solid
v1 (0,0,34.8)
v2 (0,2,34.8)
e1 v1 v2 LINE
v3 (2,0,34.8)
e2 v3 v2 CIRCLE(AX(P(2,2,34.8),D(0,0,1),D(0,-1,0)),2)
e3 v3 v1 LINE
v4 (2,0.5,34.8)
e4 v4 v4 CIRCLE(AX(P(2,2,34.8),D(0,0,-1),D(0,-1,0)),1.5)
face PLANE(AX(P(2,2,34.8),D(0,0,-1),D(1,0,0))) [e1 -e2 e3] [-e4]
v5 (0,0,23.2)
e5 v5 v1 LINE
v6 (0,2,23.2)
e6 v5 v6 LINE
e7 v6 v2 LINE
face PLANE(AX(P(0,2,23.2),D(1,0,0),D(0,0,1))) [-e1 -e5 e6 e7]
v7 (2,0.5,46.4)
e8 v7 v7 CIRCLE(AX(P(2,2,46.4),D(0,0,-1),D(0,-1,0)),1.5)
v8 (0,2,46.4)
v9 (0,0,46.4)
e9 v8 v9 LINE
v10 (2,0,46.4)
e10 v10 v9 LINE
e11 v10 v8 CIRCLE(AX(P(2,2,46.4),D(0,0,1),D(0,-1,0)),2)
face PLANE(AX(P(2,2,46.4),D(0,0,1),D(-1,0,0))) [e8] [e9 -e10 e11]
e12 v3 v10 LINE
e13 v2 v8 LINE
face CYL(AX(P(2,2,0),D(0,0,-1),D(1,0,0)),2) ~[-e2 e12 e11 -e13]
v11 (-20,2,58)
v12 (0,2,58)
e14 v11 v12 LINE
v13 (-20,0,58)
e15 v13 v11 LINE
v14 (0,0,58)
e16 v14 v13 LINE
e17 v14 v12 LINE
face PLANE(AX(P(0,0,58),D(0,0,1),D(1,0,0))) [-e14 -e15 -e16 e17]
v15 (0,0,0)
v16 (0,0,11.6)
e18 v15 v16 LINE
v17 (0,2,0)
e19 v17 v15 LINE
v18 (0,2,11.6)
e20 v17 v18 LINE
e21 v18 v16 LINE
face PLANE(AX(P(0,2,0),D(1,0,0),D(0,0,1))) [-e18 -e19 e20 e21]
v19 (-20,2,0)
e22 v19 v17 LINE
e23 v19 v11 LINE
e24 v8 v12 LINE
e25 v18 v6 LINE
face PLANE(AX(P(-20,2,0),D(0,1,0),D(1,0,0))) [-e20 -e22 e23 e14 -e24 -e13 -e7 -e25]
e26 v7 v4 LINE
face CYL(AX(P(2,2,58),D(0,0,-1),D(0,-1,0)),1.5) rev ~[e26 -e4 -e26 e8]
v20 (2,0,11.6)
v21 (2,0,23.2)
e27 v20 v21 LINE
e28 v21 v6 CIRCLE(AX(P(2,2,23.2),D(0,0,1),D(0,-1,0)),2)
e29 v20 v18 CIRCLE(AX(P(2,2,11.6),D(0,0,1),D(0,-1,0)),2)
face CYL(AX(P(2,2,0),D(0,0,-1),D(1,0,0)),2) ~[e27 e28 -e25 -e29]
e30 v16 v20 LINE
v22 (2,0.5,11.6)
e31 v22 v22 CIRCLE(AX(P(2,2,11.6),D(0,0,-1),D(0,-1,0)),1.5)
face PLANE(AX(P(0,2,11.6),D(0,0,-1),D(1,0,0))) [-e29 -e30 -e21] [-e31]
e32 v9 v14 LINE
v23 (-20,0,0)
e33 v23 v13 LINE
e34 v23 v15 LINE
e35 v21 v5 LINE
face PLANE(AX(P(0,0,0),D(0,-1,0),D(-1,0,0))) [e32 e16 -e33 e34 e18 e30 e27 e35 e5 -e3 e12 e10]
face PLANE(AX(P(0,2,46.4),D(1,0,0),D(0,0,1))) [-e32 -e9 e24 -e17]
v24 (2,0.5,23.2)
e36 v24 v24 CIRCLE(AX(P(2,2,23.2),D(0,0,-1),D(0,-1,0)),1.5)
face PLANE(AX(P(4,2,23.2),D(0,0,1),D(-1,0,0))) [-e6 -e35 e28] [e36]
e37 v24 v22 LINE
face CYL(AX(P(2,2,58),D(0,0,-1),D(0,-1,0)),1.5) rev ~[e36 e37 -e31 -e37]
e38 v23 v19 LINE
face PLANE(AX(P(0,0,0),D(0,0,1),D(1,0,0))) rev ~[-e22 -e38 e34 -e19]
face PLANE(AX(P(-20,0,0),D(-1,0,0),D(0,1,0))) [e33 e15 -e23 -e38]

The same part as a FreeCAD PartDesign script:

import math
import FreeCAD as App
import Part
import Sketcher

doc = App.newDocument("Part")
body = doc.addObject("PartDesign::Body", "Body")

# Sketch on XY plane
sketch1 = body.newObject("Sketcher::SketchObject", "Sketch")
sketch1.AttachmentSupport = (doc.getObject("XY_Plane"), [""])
sketch1.MapMode = "FlatFace"
sketch1.addGeometry([
    Part.LineSegment(App.Vector(-20, 0, 0), App.Vector(2, 0, 0)),
    Part.ArcOfCircle(Part.Circle(App.Vector(2, 2, 0), App.Vector(0, 0, 1), 2), math.radians(-90), math.radians(180)),
    Part.LineSegment(App.Vector(0, 2, 0), App.Vector(-20, 2, 0)),
    Part.LineSegment(App.Vector(-20, 2, 0), App.Vector(-20, 0, 0)),
], False)
sketch1.addConstraint([
    Sketcher.Constraint("Tangent", 0, 2, 1, 1),
    Sketcher.Constraint("Coincident", 1, 2, 2, 1),
    Sketcher.Constraint("Coincident", 2, 2, 3, 1),
    Sketcher.Constraint("Coincident", 3, 2, 0, 1),
    Sketcher.Constraint("Horizontal", 0),
    Sketcher.Constraint("Horizontal", 2),
    Sketcher.Constraint("Vertical", 3),
    Sketcher.Constraint("PointOnObject", 0, 2, -1),
    Sketcher.Constraint("PointOnObject", 1, 2, -2),
    Sketcher.Constraint("Radius", 1, 2.0),
    Sketcher.Constraint("DistanceX", 2, 2, 2, 1, 20.0),
    Sketcher.Constraint("DistanceY", 3, 2, 3, 1, 2.0),
])
pad1 = body.newObject("PartDesign::Pad", "Pad")
pad1.Profile = sketch1
pad1.Length = 58

# Sketch on XZ plane
sketch2 = body.newObject("Sketcher::SketchObject", "Sketch001")
sketch2.AttachmentSupport = (doc.getObject("XZ_Plane"), [""])
sketch2.MapMode = "FlatFace"
sketch2.AttachmentOffset = App.Placement(App.Vector(0, 0, -2), App.Rotation())
sketch2.addGeometry([
    Part.LineSegment(App.Vector(0, 11.6, 0), App.Vector(4, 11.6, 0)),  # 0
    Part.LineSegment(App.Vector(4, 11.6, 0), App.Vector(4, 0, 0)),  # 1
    Part.LineSegment(App.Vector(4, 0, 0), App.Vector(0, 0, 0)),  # 2
    Part.LineSegment(App.Vector(0, 0, 0), App.Vector(0, 11.6, 0)),  # 3
    Part.LineSegment(App.Vector(4, 23.2, 0), App.Vector(0, 23.2, 0)),  # 4
    Part.LineSegment(App.Vector(0, 23.2, 0), App.Vector(0, 34.8, 0)),  # 5
    Part.LineSegment(App.Vector(0, 34.8, 0), App.Vector(4, 34.8, 0)),  # 6
    Part.LineSegment(App.Vector(4, 34.8, 0), App.Vector(4, 23.2, 0)),  # 7
    Part.LineSegment(App.Vector(0, 46.4, 0), App.Vector(0, 58, 0)),  # 8
    Part.LineSegment(App.Vector(0, 58, 0), App.Vector(4, 58, 0)),  # 9
    Part.LineSegment(App.Vector(4, 58, 0), App.Vector(4, 46.4, 0)),  # 10
    Part.LineSegment(App.Vector(4, 46.4, 0), App.Vector(0, 46.4, 0)),  # 11
], False)
sketch2.addConstraint([
    Sketcher.Constraint("Coincident", 0, 2, 1, 1),
    Sketcher.Constraint("Coincident", 1, 2, 2, 1),
    Sketcher.Constraint("Coincident", 2, 2, 3, 1),
    Sketcher.Constraint("Coincident", 3, 2, 0, 1),
    Sketcher.Constraint("Coincident", 4, 2, 5, 1),
    Sketcher.Constraint("Coincident", 5, 2, 6, 1),
    Sketcher.Constraint("Coincident", 6, 2, 7, 1),
    Sketcher.Constraint("Coincident", 7, 2, 4, 1),
    Sketcher.Constraint("Coincident", 8, 2, 9, 1),
    Sketcher.Constraint("Coincident", 9, 2, 10, 1),
    Sketcher.Constraint("Coincident", 10, 2, 11, 1),
    Sketcher.Constraint("Coincident", 11, 2, 8, 1),
    Sketcher.Constraint("Horizontal", 0),
    Sketcher.Constraint("Vertical", 1),
    Sketcher.Constraint("Horizontal", 2),
    Sketcher.Constraint("Vertical", 3),
    Sketcher.Constraint("Horizontal", 4),
    Sketcher.Constraint("Vertical", 5),
    Sketcher.Constraint("Horizontal", 6),
    Sketcher.Constraint("Vertical", 7),
    Sketcher.Constraint("Vertical", 8),
    Sketcher.Constraint("Horizontal", 9),
    Sketcher.Constraint("Vertical", 10),
    Sketcher.Constraint("Horizontal", 11),
    Sketcher.Constraint("Coincident", 2, 2, -1, 1),
    Sketcher.Constraint("PointOnObject", 4, 2, -2),
    Sketcher.Constraint("PointOnObject", 8, 2, -2),
    Sketcher.Constraint("Vertical", 1, 2, 6, 2),
    Sketcher.Constraint("Vertical", 7, 2, 9, 2),
    Sketcher.Constraint("Equal", 3, 5),
    Sketcher.Constraint("Equal", 7, 8),
    Sketcher.Constraint("DistanceY", 1, 2, 1, 1, 11.6),
    Sketcher.Constraint("DistanceY", 3, 2, 4, 2, 11.6),
    Sketcher.Constraint("DistanceY", 6, 2, 10, 2, 11.6),
    Sketcher.Constraint("DistanceX", 0, 1, 0, 2, 4.0),
])
pocket1 = body.newObject("PartDesign::Pocket", "Pocket")
pocket1.Profile = sketch2
pocket1.Length = 4
pocket1.Midplane = True

# Sketch on XY plane
sketch3 = body.newObject("Sketcher::SketchObject", "Sketch002")
sketch3.AttachmentSupport = (doc.getObject("XY_Plane"), [""])
sketch3.MapMode = "FlatFace"
sketch3.AttachmentOffset = App.Placement(App.Vector(0, 0, 58), App.Rotation())
sketch3.addGeometry(Part.Circle(App.Vector(2, 2, 0), App.Vector(0, 0, 1), 1.5), False)
sketch3.addConstraint([
    Sketcher.Constraint("Diameter", 0, 3.0),
    Sketcher.Constraint("DistanceX", -1, 1, 0, 3, 2.0),
    Sketcher.Constraint("DistanceY", -1, 1, 0, 3, 2.0),
])
doc.recompute()
hole = body.newObject("PartDesign::Hole", "Hole")
hole.Profile = sketch3
hole.ThreadType = "None"
hole.Diameter = 3
hole.DepthType = "ThroughAll"

doc.recompute()
